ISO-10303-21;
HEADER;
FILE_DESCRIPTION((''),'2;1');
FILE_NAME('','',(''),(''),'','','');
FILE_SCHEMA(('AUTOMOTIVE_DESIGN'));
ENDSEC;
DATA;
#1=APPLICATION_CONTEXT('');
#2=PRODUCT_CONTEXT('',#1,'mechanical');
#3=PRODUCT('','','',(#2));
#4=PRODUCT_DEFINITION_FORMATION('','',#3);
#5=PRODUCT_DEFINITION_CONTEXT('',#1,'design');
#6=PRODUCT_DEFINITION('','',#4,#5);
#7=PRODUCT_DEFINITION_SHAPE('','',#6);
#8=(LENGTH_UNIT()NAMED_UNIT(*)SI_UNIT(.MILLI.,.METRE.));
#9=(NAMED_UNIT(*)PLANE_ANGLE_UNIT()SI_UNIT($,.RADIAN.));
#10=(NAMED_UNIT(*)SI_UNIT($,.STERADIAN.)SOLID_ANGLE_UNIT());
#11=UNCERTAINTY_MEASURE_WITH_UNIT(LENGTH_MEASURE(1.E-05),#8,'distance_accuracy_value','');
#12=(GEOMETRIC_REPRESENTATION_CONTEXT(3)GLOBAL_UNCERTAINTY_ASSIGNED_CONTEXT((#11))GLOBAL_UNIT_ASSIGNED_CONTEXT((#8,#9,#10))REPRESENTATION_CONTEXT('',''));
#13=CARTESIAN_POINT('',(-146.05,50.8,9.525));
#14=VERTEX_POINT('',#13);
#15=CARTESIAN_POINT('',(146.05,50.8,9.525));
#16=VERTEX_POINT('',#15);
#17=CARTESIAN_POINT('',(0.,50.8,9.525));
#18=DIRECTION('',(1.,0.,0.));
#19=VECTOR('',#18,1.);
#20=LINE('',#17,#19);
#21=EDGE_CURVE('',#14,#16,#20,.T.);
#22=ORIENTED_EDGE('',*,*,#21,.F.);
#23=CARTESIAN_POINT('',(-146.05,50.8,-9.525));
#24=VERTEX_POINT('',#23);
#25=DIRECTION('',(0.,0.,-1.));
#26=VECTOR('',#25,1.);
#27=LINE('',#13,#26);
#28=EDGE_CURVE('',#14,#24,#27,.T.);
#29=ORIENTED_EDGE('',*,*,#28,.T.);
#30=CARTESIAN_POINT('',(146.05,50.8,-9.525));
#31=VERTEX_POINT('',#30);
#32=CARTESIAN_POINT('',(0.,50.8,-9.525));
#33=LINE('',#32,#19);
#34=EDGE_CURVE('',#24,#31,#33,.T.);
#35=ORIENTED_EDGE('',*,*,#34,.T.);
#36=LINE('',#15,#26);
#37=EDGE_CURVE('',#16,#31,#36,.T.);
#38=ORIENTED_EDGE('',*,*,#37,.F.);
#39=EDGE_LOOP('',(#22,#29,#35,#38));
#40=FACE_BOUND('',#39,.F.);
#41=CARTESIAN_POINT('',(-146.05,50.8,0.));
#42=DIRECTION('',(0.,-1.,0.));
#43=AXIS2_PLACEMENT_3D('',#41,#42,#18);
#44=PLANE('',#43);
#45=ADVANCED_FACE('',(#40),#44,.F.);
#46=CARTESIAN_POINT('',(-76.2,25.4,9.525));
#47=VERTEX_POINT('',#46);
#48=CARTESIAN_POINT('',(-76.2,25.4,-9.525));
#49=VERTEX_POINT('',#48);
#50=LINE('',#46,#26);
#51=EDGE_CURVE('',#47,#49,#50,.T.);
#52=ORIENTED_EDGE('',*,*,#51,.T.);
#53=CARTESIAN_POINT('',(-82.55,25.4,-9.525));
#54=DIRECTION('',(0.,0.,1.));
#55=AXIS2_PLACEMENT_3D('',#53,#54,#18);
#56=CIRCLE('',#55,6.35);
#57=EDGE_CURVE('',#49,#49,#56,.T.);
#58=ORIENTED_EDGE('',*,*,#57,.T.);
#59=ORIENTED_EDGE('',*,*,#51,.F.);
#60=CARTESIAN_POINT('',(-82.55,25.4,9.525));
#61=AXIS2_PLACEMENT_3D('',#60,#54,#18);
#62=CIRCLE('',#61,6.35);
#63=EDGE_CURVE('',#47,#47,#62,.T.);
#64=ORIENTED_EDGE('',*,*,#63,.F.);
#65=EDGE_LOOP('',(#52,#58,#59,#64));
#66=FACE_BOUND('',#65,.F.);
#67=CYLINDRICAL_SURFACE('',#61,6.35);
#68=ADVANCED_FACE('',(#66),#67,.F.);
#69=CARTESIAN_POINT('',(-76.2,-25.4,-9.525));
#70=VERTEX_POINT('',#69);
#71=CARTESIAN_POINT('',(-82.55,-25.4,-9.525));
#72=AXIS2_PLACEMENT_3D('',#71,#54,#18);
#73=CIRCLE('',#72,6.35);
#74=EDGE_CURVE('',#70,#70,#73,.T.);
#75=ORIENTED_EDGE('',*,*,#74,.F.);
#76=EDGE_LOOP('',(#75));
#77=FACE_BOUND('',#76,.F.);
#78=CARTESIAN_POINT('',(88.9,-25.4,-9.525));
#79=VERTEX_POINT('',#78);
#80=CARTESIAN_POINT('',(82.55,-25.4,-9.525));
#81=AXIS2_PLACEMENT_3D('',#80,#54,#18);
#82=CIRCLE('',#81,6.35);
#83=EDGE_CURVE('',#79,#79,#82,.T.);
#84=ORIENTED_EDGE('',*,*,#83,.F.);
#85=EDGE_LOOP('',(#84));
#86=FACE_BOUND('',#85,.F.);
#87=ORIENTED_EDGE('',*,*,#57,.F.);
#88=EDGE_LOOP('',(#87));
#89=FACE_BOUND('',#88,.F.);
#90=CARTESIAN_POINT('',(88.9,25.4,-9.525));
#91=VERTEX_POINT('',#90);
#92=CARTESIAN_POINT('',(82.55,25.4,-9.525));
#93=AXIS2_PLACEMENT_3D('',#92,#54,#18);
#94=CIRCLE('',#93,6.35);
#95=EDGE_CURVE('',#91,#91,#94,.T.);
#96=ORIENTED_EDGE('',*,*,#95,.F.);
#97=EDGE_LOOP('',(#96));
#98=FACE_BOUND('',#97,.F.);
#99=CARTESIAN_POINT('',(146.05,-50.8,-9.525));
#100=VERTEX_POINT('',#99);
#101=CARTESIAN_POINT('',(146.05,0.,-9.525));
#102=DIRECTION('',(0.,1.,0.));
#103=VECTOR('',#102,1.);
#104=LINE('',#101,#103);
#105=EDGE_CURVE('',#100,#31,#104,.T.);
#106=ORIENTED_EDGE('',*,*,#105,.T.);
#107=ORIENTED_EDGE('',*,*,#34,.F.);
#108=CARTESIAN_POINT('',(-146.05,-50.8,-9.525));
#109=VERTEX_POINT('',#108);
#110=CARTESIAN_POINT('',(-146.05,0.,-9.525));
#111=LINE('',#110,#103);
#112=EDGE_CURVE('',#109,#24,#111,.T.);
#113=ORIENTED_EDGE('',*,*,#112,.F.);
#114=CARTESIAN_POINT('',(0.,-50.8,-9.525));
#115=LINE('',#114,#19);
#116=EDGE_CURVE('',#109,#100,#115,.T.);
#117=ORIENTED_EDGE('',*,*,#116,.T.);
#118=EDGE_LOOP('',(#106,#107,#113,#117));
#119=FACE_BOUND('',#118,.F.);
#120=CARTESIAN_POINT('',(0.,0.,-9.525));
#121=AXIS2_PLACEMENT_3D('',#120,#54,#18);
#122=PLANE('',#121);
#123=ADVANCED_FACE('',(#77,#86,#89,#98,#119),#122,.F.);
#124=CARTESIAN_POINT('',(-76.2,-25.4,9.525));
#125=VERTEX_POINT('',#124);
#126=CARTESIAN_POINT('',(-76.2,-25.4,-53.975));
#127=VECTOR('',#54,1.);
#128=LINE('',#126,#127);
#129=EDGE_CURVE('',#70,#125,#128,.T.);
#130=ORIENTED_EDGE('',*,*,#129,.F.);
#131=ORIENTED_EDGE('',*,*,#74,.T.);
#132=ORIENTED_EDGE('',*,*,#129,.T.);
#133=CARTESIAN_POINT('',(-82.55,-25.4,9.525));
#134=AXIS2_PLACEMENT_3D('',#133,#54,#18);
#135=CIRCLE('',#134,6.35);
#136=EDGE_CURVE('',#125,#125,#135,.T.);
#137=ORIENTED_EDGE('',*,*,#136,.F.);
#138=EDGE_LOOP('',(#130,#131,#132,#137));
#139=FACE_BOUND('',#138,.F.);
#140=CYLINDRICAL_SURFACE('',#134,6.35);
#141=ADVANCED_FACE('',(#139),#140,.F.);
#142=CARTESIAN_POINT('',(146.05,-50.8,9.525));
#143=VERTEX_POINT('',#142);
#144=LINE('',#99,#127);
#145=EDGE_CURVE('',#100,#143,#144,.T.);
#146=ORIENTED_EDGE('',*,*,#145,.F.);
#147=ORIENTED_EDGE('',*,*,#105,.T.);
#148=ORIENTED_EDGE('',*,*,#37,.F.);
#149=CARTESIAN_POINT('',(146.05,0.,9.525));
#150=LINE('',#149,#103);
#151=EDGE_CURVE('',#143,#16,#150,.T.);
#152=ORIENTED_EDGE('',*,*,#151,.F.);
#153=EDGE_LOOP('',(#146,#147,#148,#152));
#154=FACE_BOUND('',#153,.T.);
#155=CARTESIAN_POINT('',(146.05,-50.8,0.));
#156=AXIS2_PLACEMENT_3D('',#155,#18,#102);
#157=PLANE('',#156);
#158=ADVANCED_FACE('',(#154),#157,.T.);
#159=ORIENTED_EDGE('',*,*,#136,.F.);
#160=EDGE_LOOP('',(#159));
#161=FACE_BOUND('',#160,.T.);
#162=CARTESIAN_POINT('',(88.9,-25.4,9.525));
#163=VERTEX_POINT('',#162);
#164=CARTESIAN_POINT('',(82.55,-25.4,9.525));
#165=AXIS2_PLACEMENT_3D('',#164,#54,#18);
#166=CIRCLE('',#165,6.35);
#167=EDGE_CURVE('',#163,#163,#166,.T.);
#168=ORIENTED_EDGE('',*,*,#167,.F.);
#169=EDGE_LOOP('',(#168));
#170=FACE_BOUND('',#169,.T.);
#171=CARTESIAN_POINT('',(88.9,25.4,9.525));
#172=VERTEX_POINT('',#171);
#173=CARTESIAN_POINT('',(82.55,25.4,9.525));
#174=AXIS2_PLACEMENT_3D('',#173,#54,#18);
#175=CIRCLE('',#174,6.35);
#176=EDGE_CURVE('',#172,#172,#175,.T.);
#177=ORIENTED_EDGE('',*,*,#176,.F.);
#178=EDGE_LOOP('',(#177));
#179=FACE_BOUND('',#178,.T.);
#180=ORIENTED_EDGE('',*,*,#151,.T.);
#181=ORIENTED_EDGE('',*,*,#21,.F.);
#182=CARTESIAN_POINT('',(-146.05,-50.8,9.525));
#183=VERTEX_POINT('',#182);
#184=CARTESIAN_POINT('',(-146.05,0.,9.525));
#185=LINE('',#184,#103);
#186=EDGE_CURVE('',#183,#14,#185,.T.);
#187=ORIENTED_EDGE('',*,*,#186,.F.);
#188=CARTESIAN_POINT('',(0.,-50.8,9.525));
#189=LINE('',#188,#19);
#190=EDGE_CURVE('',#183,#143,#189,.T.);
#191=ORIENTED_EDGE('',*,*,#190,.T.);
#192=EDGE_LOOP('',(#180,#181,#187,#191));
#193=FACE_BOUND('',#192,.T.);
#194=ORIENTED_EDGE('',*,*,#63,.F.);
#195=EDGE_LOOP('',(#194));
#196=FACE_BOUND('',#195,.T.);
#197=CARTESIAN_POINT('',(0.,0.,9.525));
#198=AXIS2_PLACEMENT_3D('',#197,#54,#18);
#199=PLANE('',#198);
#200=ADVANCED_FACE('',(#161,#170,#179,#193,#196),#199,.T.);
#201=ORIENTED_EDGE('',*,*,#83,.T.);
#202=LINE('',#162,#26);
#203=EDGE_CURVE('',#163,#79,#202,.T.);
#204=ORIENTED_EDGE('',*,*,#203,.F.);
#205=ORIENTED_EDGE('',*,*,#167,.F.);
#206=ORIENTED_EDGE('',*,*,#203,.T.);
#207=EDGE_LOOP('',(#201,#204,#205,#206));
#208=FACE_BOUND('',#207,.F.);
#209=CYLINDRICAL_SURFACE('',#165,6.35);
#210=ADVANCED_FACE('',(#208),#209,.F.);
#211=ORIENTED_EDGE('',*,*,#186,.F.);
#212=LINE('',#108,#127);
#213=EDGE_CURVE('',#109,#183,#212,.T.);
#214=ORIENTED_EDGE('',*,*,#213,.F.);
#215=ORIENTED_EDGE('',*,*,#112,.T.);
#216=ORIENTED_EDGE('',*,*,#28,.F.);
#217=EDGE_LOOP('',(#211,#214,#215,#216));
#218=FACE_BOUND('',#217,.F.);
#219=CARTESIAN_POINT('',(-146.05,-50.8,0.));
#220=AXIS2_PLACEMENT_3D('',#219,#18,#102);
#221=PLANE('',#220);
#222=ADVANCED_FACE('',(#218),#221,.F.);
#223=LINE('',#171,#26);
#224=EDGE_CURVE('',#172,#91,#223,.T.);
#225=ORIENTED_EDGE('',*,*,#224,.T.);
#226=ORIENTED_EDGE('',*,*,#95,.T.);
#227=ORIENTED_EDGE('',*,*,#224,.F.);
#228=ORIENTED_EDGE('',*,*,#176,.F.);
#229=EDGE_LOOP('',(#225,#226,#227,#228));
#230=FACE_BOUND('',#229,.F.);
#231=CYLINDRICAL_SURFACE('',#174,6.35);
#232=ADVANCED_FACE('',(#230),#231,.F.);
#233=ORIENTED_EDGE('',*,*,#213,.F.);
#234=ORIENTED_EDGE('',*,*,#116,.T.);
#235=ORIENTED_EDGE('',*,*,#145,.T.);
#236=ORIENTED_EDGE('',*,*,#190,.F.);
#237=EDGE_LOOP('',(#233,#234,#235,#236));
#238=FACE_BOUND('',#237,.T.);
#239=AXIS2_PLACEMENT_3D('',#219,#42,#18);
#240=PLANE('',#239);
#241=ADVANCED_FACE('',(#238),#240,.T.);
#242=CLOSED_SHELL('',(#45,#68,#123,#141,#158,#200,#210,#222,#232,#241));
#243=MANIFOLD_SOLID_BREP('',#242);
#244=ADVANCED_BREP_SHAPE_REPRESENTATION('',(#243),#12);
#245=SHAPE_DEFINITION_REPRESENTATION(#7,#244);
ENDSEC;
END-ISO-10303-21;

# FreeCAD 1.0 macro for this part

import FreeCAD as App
import Part
import Sketcher

V = App.Vector
Q = App.Units.Quantity


def add_polygon(sketch, points):
    """Adds a closed chain of lines whose ends are joined by coincident constraints."""
    first, n = sketch.GeometryCount, len(points)
    for a, b in zip(points, points[1:] + points[:1]):
        sketch.addGeometry(Part.LineSegment(App.Vector(*a, 0), App.Vector(*b, 0)), False)
    for i in range(n):
        sketch.addConstraint(Sketcher.Constraint("Coincident", first + i, 2, first + (i + 1) % n, 1))

doc = App.newDocument("Part")
body = doc.addObject("PartDesign::Body", "Body")

# Sketch on XY plane
sketch1 = body.newObject("Sketcher::SketchObject", "Sketch")
sketch1.AttachmentSupport = (doc.getObject("XY_Plane"), [""])
sketch1.MapMode = "FlatFace"
add_polygon(sketch1, [(-146.05, 50.8), (-146.05, -50.8), (146.05, -50.8), (146.05, 50.8)])  # lines 0-3
sketch1.addConstraint([
    Sketcher.Constraint("Vertical", 0),
    Sketcher.Constraint("Horizontal", 1),
    Sketcher.Constraint("Vertical", 2),
    Sketcher.Constraint("Horizontal", 3),
    Sketcher.Constraint("Symmetric", 0, 2, 2, 2, -1, 1),
    Sketcher.Constraint("DistanceY", 0, 2, 0, 1, Q("4 in")),
    Sketcher.Constraint("DistanceX", 1, 1, 1, 2, Q("11.5 in")),
])
pad1 = body.newObject("PartDesign::Pad", "Pad")
pad1.Profile = sketch1
pad1.Length = Q("0.75 in")
pad1.Midplane = True

# Sketch on XY plane
sketch2 = body.newObject("Sketcher::SketchObject", "Sketch001")
sketch2.AttachmentSupport = (doc.getObject("XY_Plane"), [""])
sketch2.MapMode = "FlatFace"
sketch2.AttachmentOffset = App.Placement(V(0, 0, 0.375 * 25.4), App.Rotation())
sketch2.addGeometry([
    Part.Circle(V(-82.55, 25.4, 0), V(0, 0, 1), 6.35),
    Part.Circle(V(82.55, 25.4, 0), V(0, 0, 1), 6.35),
    Part.Circle(V(82.55, -25.4, 0), V(0, 0, 1), 6.35),
    Part.Circle(V(-82.55, -25.4, 0), V(0, 0, 1), 6.35),
], False)
sketch2.addConstraint([
    Sketcher.Constraint("Equal", 0, 1),
    Sketcher.Constraint("Equal", 1, 2),
    Sketcher.Constraint("Equal", 2, 3),
    Sketcher.Constraint("Symmetric", 0, 3, 2, 3, -1, 1),
    Sketcher.Constraint("Symmetric", 1, 3, 3, 3, -1, 1),
    Sketcher.Constraint("Symmetric", 0, 3, 1, 3, -2),
    Sketcher.Constraint("Diameter", 0, Q("0.5 in")),
    Sketcher.Constraint("DistanceY", -1, 1, 0, 3, Q("1 in")),
    Sketcher.Constraint("DistanceX", 0, 3, 1, 3, Q("6.5 in")),
])
pocket1 = body.newObject("PartDesign::Pocket", "Pocket")
pocket1.Profile = sketch2
pocket1.Length = Q("5 in")
pocket1.Midplane = True

doc.recompute()
